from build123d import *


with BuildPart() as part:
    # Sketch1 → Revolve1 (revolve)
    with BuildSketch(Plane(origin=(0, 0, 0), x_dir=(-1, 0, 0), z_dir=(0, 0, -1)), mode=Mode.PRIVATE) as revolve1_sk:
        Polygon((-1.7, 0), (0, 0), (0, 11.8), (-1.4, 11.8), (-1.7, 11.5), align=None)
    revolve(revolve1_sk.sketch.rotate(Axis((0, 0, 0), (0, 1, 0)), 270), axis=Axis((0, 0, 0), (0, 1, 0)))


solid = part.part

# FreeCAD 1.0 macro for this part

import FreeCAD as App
import Part
import Sketcher
Q = App.Units.Quantity


def add_polygon(sketch, points):
    """Adds a closed chain of lines whose ends are joined by coincident constraints."""
    first, n = sketch.GeometryCount, len(points)
    for a, b in zip(points, points[1:] + points[:1]):
        sketch.addGeometry(Part.LineSegment(App.Vector(*a, 0), App.Vector(*b, 0)), False)
    for i in range(n):
        sketch.addConstraint(Sketcher.Constraint("Coincident", first + i, 2, first + (i + 1) % n, 1))

doc = App.newDocument("Part")
body = doc.addObject("PartDesign::Body", "Body")

# Sketch on XY plane
sketch1 = doc.addObject("Sketcher::SketchObject", "Sketch")
body.addObject(sketch1)
sketch1.AttachmentSupport = (doc.XY_Plane, [""])
sketch1.MapMode = "FlatFace"
add_polygon(sketch1, [(1.7, 0), (0, 0), (0, 11.8), (1.4, 11.8), (1.7, 11.5)])  # lines 0-4
sketch1.addConstraint([
    Sketcher.Constraint("Horizontal", 0),
    Sketcher.Constraint("Vertical", 1),
    Sketcher.Constraint("Horizontal", 2),
    Sketcher.Constraint("Vertical", 4),
    Sketcher.Constraint("Coincident", 0, 2, -1, 1),
    Sketcher.Constraint("Angle", 3, Q("-45 deg")),
    Sketcher.Constraint("DistanceX", 0, 2, 0, 1, 1.7),
    Sketcher.Constraint("DistanceX", 2, 1, 2, 2, 1.4),
    Sketcher.Constraint("DistanceY", 1, 1, 1, 2, 11.8),
])
revolution = doc.addObject("PartDesign::Revolution", "Revolution")
body.addObject(revolution)
revolution.Profile = sketch1
revolution.ReferenceAxis = (sketch1, ["V_Axis"])
revolution.Angle = 360

doc.recompute()
